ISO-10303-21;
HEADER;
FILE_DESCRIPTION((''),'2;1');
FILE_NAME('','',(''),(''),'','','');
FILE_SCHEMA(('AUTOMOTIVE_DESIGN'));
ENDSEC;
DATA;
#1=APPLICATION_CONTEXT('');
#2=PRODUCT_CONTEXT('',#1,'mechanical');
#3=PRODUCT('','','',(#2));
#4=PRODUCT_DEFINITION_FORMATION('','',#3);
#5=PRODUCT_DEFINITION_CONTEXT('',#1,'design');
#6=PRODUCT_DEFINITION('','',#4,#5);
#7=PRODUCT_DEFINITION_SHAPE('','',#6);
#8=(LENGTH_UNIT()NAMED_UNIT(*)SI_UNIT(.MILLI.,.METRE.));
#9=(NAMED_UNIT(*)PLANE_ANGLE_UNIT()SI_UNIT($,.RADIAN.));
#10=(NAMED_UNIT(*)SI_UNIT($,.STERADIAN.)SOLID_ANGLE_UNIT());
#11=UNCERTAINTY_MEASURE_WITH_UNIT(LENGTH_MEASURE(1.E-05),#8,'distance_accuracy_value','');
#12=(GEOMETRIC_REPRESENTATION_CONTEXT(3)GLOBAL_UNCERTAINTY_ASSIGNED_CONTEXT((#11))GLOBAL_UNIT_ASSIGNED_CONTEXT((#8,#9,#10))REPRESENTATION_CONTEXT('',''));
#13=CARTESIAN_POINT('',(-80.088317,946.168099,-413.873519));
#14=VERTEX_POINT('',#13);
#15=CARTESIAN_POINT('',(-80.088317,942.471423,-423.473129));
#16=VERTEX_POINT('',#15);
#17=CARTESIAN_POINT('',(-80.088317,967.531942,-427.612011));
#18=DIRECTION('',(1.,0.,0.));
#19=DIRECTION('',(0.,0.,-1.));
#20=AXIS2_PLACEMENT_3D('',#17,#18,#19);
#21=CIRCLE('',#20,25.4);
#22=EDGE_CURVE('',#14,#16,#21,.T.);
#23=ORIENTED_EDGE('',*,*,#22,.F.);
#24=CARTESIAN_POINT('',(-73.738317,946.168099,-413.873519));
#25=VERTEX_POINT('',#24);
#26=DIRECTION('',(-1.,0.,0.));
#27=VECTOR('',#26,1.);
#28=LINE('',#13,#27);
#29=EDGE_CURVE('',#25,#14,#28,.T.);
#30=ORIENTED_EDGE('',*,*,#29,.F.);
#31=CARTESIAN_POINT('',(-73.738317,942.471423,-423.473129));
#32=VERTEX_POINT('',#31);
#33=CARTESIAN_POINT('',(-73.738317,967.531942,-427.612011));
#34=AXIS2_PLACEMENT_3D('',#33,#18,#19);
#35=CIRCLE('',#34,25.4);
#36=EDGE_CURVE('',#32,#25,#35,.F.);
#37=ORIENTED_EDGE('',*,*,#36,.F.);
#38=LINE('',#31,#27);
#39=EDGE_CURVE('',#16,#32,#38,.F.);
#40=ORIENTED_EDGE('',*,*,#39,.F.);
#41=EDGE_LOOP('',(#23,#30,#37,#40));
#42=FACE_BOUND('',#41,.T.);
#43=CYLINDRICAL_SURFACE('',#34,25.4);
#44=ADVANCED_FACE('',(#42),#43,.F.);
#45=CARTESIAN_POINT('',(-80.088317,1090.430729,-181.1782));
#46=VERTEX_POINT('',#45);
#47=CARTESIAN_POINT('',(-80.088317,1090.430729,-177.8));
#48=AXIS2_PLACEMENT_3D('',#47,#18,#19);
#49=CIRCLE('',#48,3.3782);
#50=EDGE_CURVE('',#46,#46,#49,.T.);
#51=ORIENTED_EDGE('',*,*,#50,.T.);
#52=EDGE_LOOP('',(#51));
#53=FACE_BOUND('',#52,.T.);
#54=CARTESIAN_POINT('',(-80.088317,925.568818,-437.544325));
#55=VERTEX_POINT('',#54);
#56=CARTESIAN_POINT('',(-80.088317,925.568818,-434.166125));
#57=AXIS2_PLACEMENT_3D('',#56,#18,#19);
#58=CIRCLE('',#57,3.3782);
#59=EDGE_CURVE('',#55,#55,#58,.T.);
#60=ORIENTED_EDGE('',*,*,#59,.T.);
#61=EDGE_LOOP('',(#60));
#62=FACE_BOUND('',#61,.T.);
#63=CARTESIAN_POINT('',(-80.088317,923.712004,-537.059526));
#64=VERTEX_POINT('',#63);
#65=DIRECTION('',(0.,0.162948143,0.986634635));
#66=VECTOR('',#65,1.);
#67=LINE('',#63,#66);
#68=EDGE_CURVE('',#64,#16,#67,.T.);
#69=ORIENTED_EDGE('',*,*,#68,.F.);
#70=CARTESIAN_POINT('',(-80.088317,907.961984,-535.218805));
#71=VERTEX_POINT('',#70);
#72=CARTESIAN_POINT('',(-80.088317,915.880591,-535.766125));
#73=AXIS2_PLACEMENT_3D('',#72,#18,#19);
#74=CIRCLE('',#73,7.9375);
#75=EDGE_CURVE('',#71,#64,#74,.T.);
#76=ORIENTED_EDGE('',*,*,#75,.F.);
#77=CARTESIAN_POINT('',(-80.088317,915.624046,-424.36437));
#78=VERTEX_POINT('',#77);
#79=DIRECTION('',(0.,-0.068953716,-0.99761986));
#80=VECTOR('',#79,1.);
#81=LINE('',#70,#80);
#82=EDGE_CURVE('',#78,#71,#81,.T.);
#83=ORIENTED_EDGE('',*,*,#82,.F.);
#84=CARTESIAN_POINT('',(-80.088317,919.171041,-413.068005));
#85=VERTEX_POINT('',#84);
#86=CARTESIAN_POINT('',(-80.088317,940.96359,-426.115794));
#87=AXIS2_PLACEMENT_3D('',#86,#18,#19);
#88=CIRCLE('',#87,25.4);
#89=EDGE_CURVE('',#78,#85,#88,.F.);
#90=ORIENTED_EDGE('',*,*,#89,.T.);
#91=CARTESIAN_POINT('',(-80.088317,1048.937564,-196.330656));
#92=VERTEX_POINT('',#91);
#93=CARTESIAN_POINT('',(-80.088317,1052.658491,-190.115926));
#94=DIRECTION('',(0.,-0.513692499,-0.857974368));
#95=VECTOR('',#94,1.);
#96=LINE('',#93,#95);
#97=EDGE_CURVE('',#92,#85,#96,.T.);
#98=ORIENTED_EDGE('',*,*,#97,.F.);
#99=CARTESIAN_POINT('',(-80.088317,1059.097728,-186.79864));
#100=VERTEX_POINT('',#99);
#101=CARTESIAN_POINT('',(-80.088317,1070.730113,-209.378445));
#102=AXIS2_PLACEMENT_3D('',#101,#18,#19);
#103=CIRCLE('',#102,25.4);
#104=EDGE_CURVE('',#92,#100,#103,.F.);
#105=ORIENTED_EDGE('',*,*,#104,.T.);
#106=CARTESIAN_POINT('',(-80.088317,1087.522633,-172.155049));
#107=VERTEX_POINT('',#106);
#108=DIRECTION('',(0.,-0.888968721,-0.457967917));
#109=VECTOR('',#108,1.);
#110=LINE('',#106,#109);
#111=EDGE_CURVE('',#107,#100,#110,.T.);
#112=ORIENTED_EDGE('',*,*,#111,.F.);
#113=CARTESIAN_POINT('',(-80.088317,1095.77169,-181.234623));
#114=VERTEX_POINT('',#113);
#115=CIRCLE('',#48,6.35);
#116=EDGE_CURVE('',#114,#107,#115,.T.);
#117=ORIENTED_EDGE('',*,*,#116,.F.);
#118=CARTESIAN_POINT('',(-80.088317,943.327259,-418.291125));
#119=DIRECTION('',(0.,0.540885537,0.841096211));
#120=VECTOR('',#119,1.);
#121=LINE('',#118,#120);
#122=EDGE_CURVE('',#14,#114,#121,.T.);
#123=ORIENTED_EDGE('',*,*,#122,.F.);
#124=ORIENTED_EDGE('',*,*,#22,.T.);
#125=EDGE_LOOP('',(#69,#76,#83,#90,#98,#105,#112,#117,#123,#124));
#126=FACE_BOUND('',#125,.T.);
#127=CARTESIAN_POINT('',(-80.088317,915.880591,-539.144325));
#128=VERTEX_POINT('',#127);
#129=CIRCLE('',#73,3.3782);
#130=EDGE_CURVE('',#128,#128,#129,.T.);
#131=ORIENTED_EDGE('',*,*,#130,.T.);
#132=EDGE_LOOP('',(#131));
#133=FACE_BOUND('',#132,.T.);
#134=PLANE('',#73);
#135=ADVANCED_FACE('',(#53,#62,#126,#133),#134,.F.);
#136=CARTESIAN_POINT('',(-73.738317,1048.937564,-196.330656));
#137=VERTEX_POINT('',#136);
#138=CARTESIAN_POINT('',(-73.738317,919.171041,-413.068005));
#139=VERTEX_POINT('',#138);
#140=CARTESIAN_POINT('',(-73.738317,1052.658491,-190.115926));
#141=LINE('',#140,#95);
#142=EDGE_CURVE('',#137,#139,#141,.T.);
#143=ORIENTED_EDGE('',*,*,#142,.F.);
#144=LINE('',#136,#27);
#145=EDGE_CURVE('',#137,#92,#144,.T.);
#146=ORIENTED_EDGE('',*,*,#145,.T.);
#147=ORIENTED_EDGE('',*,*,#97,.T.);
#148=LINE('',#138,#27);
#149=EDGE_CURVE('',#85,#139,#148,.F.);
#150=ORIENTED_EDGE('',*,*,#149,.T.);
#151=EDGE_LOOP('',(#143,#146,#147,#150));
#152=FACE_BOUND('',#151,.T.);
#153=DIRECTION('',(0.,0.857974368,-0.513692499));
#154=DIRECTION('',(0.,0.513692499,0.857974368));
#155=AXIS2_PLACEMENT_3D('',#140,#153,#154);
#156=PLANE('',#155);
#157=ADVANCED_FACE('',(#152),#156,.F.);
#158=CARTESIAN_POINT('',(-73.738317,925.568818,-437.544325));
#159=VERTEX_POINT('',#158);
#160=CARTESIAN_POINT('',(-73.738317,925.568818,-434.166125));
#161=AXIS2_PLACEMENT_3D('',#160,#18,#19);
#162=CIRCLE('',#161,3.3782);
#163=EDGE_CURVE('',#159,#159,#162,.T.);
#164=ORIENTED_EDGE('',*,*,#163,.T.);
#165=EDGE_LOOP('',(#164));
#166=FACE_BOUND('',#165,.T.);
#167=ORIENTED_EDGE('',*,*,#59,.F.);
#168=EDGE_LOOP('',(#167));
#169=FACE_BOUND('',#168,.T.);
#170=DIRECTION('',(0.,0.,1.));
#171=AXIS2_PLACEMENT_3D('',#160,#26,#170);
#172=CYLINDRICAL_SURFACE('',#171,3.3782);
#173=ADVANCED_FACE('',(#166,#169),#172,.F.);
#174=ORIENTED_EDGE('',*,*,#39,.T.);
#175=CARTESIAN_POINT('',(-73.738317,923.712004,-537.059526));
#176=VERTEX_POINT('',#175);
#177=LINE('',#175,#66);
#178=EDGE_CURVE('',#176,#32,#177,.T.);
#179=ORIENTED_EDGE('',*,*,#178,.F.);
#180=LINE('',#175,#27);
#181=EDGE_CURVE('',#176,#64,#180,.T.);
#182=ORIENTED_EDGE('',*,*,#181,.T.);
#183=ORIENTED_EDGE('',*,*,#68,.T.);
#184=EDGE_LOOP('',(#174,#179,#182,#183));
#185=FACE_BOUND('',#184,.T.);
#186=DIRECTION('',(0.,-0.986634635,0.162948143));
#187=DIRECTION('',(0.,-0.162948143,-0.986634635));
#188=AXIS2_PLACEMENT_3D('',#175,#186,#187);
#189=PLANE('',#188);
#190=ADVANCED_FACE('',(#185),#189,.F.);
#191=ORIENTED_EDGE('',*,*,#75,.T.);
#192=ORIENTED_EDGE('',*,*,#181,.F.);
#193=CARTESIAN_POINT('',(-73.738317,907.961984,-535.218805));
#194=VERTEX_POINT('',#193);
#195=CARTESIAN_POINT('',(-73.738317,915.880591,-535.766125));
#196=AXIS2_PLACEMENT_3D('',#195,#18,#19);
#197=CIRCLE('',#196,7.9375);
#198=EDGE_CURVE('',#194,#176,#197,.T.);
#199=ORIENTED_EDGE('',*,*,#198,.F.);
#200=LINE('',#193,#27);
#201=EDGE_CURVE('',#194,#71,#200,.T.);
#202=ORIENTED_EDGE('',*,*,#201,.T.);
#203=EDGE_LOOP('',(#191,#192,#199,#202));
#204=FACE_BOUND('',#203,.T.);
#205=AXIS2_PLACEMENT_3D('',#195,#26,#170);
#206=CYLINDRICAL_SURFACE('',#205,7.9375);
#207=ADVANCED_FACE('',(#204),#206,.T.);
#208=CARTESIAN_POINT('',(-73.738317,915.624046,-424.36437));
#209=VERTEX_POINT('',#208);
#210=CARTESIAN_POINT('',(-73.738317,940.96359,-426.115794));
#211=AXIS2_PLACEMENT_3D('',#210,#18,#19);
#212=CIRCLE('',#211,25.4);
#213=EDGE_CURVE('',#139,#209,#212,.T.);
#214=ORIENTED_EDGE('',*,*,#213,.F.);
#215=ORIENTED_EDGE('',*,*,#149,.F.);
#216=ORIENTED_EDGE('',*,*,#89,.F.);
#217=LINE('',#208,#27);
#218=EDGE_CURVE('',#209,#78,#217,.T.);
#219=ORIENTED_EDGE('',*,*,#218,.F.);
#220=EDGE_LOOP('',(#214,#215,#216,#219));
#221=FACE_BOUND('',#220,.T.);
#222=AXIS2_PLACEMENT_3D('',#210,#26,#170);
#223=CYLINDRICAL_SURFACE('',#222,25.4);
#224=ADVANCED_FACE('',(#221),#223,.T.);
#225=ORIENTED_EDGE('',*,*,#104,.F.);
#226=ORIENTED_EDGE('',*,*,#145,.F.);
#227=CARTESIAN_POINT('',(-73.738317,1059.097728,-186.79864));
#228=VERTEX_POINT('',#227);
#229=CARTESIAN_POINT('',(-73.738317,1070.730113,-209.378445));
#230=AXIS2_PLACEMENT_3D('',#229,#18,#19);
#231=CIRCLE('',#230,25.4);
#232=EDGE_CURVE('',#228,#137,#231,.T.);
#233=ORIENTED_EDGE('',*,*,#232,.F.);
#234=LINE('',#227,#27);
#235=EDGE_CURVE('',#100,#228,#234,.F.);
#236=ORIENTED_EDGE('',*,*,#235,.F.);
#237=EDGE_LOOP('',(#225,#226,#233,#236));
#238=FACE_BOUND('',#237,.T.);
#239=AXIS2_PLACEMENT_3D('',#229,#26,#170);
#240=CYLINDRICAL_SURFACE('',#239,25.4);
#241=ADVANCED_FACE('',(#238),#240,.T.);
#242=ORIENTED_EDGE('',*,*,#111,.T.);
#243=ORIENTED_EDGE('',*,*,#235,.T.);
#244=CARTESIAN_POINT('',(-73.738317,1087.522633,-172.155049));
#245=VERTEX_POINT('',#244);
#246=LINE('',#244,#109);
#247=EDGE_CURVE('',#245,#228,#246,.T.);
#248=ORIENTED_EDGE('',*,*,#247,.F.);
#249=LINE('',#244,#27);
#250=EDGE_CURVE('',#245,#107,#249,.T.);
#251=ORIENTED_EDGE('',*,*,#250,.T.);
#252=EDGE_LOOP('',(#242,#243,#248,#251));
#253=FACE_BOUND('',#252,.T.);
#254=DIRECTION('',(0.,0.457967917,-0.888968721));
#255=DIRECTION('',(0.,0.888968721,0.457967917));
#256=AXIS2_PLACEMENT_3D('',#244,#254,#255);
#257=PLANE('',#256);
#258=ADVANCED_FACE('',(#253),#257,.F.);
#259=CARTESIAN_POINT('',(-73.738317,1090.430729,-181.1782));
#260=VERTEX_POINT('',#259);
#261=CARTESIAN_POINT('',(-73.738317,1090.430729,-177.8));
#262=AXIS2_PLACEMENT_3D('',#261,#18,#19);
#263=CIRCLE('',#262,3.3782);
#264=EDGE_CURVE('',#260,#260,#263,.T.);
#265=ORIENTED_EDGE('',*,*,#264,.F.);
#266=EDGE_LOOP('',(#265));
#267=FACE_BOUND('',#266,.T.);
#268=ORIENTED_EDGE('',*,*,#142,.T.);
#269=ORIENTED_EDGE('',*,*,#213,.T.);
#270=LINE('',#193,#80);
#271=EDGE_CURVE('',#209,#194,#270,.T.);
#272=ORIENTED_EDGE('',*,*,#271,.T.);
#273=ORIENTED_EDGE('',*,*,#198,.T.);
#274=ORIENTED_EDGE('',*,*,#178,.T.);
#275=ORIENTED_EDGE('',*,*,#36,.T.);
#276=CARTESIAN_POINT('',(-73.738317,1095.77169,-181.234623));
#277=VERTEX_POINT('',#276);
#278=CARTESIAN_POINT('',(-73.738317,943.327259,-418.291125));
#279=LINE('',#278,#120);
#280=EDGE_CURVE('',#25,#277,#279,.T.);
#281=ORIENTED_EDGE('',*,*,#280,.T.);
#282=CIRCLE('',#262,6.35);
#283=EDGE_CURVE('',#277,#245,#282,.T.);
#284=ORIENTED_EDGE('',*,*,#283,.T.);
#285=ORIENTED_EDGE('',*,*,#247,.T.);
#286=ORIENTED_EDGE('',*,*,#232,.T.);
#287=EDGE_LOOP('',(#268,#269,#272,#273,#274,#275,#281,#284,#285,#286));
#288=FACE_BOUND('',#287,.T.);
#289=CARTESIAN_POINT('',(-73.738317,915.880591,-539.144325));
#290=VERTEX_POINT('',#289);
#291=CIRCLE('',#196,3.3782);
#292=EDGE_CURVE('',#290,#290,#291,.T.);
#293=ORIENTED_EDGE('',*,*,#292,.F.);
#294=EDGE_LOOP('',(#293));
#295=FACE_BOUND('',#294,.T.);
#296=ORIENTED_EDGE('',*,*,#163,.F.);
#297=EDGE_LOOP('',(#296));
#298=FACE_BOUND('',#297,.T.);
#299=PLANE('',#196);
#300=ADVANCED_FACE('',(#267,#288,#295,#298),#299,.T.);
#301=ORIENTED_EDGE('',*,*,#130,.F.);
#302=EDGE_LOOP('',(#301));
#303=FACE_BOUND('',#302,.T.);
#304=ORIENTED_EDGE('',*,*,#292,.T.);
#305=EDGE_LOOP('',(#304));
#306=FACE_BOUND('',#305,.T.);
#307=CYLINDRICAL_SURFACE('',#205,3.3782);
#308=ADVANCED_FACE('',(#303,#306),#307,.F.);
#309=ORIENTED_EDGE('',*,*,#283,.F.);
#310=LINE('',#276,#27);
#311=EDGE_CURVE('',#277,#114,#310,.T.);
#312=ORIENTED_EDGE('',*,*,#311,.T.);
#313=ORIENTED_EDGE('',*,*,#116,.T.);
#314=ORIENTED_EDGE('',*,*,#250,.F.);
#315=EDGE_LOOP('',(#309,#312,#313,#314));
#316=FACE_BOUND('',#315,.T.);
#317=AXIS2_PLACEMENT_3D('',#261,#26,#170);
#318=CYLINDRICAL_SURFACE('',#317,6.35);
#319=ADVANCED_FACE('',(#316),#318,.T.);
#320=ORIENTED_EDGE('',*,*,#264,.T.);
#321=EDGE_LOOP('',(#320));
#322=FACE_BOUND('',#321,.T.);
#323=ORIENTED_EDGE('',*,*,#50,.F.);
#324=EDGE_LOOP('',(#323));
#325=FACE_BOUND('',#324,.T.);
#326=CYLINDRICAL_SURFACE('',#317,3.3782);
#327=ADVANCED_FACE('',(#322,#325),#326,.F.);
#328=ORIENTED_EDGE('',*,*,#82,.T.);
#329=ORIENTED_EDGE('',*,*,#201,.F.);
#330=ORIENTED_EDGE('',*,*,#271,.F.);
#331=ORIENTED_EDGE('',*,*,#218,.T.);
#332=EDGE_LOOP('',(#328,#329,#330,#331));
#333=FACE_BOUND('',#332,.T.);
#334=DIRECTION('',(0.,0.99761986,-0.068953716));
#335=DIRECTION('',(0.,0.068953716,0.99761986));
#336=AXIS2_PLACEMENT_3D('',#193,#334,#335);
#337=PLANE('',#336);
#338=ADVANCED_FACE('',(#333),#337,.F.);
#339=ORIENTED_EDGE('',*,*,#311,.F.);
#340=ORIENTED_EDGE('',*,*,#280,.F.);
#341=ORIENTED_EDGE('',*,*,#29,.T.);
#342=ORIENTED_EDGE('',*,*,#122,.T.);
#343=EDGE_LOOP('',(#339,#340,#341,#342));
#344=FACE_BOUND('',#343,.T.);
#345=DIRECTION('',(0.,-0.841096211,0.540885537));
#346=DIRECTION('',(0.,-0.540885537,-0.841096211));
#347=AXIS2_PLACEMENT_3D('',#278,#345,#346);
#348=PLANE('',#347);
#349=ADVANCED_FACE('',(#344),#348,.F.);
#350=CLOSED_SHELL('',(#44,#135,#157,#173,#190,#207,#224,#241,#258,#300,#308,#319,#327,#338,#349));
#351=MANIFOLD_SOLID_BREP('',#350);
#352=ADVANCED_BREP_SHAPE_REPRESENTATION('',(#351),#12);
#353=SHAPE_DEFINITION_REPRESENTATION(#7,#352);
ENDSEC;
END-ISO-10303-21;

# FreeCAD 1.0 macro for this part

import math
import FreeCAD as App
import Part
import Sketcher

V = App.Vector
Q = App.Units.Quantity


def edges_at(feature, points):
    """Names of the edges that pass closest to the given points."""
    edges = feature.Shape.Edges
    near = lambda p: min(range(len(edges)), key=lambda i: edges[i].distToShape(Part.Vertex(*p))[0])
    return sorted({f"Edge{near(p) + 1}" for p in points})

doc = App.newDocument("Part")
body = doc.addObject("PartDesign::Body", "Body")

# Sketch on YZ plane
sketch1 = body.newObject("Sketcher::SketchObject", "Sketch")
sketch1.AttachmentSupport = (doc.getObject("YZ_Plane"), [""])
sketch1.MapMode = "FlatFace"
sketch1.AttachmentOffset = App.Placement(V(0, 0, -76.913317), App.Rotation())
sketch1.addGeometry(Part.LineSegment(V(916, -418.3, 0), V(908, -535.2, 0)), False)
sketch1.addGeometry(Part.ArcOfCircle(Part.Circle(V(915.9, -535.8, 0), V(0, 0, 1), 7.9), math.radians(176), math.radians(351)), False)
sketch1.addGeometry(Part.LineSegment(V(923.7, -537.1, 0), V(943.3, -418.3, 0)), False)
sketch1.addGeometry(Part.LineSegment(V(943.3, -418.3, 0), V(1095.8, -181.2, 0)), False)
sketch1.addGeometry(Part.ArcOfCircle(Part.Circle(V(1090.4, -177.8, 0), V(0, 0, 1), 6.3), math.radians(-33), math.radians(117)), False)
sketch1.addGeometry(Part.LineSegment(V(1087.5, -172.2, 0), V(1052.7, -190.1, 0)), False)
sketch1.addGeometry(Part.LineSegment(V(1052.7, -190.1, 0), V(916, -418.3, 0)), False)
sketch1.addGeometry(Part.Circle(V(915.9, -535.8, 0), V(0, 0, 1), 3.4), False)
sketch1.addGeometry(Part.Circle(V(925.6, -434.2, 0), V(0, 0, 1), 3.4), False)
sketch1.addGeometry(Part.Circle(V(1090.4, -177.8, 0), V(0, 0, 1), 3.4), False)
sketch1.addConstraint(Sketcher.Constraint("Tangent", 0, 2, 1, 1))
sketch1.addConstraint(Sketcher.Constraint("Tangent", 1, 2, 2, 1))
sketch1.addConstraint(Sketcher.Constraint("Coincident", 2, 2, 3, 1))
sketch1.addConstraint(Sketcher.Constraint("Tangent", 3, 2, 4, 1))
sketch1.addConstraint(Sketcher.Constraint("Tangent", 4, 2, 5, 1))
sketch1.addConstraint(Sketcher.Constraint("Coincident", 5, 2, 6, 1))
sketch1.addConstraint(Sketcher.Constraint("Coincident", 6, 2, 0, 1))
sketch1.addConstraint(Sketcher.Constraint("Coincident", 7, 3, 1, 3))
sketch1.addConstraint(Sketcher.Constraint("Coincident", 9, 3, 4, 3))
sketch1.addConstraint(Sketcher.Constraint("Equal", 7, 8))
sketch1.addConstraint(Sketcher.Constraint("Equal", 8, 9))
sketch1.addConstraint(Sketcher.Constraint("Horizontal", 2, 2, 6, 2))
sketch1.addConstraint(Sketcher.Constraint("Radius", 4, Q("0.25 in")))
sketch1.addConstraint(Sketcher.Constraint("Diameter", 7, Q("0.266 in")))
sketch1.addConstraint(Sketcher.Constraint("DistanceY", 4, 3, -1, 1, Q("7 in")))
sketch1.addConstraint(Sketcher.Constraint("Radius", 1, Q("0.3125 in")))
sketch1.addConstraint(Sketcher.Constraint("DistanceY", 7, 3, 8, 3, Q("4 in")))
sketch1.addConstraint(Sketcher.Constraint("DistanceY", 8, 3, 2, 2, Q("0.625 in")))
sketch1.addConstraint(Sketcher.Constraint("DistanceX", 6, 2, 8, 3, Q("0.375 in")))
sketch1.addConstraint(Sketcher.Constraint("DistanceY", 1, 2, 7, 3, Q("1.293401 mm")))
sketch1.addConstraint(Sketcher.Constraint("DistanceY", 2, 2, 3, 2, Q("237.056502 mm")))
sketch1.addConstraint(Sketcher.Constraint("DistanceX", 5, 2, 3, 2, Q("43.113199 mm")))
sketch1.addConstraint(Sketcher.Constraint("DistanceY", 2, 2, 5, 2, Q("228.175199 mm")))
sketch1.addConstraint(Sketcher.Constraint("DistanceX", -1, 1, 1, 3, Q("915.880591 mm")))
sketch1.addConstraint(Sketcher.Constraint("DistanceX", -1, 1, 4, 3, Q("1090.430729 mm")))
sketch1.addConstraint(Sketcher.Constraint("DistanceX", 8, 3, 4, 3, Q("164.861912 mm")))
pad1 = body.newObject("PartDesign::Pad", "Pad")
pad1.Profile = sketch1
pad1.Length = Q("0.25 in")
pad1.Midplane = True
doc.recompute()

fillet = body.newObject("PartDesign::Fillet", "Fillet")
fillet.Base = (pad1, edges_at(pad1, [(-76.913, 916.044, -418.291), (-76.913, 1052.658, -190.116), (-76.913, 943.327, -418.291)]))
fillet.Radius = Q("1 in")

doc.recompute()
